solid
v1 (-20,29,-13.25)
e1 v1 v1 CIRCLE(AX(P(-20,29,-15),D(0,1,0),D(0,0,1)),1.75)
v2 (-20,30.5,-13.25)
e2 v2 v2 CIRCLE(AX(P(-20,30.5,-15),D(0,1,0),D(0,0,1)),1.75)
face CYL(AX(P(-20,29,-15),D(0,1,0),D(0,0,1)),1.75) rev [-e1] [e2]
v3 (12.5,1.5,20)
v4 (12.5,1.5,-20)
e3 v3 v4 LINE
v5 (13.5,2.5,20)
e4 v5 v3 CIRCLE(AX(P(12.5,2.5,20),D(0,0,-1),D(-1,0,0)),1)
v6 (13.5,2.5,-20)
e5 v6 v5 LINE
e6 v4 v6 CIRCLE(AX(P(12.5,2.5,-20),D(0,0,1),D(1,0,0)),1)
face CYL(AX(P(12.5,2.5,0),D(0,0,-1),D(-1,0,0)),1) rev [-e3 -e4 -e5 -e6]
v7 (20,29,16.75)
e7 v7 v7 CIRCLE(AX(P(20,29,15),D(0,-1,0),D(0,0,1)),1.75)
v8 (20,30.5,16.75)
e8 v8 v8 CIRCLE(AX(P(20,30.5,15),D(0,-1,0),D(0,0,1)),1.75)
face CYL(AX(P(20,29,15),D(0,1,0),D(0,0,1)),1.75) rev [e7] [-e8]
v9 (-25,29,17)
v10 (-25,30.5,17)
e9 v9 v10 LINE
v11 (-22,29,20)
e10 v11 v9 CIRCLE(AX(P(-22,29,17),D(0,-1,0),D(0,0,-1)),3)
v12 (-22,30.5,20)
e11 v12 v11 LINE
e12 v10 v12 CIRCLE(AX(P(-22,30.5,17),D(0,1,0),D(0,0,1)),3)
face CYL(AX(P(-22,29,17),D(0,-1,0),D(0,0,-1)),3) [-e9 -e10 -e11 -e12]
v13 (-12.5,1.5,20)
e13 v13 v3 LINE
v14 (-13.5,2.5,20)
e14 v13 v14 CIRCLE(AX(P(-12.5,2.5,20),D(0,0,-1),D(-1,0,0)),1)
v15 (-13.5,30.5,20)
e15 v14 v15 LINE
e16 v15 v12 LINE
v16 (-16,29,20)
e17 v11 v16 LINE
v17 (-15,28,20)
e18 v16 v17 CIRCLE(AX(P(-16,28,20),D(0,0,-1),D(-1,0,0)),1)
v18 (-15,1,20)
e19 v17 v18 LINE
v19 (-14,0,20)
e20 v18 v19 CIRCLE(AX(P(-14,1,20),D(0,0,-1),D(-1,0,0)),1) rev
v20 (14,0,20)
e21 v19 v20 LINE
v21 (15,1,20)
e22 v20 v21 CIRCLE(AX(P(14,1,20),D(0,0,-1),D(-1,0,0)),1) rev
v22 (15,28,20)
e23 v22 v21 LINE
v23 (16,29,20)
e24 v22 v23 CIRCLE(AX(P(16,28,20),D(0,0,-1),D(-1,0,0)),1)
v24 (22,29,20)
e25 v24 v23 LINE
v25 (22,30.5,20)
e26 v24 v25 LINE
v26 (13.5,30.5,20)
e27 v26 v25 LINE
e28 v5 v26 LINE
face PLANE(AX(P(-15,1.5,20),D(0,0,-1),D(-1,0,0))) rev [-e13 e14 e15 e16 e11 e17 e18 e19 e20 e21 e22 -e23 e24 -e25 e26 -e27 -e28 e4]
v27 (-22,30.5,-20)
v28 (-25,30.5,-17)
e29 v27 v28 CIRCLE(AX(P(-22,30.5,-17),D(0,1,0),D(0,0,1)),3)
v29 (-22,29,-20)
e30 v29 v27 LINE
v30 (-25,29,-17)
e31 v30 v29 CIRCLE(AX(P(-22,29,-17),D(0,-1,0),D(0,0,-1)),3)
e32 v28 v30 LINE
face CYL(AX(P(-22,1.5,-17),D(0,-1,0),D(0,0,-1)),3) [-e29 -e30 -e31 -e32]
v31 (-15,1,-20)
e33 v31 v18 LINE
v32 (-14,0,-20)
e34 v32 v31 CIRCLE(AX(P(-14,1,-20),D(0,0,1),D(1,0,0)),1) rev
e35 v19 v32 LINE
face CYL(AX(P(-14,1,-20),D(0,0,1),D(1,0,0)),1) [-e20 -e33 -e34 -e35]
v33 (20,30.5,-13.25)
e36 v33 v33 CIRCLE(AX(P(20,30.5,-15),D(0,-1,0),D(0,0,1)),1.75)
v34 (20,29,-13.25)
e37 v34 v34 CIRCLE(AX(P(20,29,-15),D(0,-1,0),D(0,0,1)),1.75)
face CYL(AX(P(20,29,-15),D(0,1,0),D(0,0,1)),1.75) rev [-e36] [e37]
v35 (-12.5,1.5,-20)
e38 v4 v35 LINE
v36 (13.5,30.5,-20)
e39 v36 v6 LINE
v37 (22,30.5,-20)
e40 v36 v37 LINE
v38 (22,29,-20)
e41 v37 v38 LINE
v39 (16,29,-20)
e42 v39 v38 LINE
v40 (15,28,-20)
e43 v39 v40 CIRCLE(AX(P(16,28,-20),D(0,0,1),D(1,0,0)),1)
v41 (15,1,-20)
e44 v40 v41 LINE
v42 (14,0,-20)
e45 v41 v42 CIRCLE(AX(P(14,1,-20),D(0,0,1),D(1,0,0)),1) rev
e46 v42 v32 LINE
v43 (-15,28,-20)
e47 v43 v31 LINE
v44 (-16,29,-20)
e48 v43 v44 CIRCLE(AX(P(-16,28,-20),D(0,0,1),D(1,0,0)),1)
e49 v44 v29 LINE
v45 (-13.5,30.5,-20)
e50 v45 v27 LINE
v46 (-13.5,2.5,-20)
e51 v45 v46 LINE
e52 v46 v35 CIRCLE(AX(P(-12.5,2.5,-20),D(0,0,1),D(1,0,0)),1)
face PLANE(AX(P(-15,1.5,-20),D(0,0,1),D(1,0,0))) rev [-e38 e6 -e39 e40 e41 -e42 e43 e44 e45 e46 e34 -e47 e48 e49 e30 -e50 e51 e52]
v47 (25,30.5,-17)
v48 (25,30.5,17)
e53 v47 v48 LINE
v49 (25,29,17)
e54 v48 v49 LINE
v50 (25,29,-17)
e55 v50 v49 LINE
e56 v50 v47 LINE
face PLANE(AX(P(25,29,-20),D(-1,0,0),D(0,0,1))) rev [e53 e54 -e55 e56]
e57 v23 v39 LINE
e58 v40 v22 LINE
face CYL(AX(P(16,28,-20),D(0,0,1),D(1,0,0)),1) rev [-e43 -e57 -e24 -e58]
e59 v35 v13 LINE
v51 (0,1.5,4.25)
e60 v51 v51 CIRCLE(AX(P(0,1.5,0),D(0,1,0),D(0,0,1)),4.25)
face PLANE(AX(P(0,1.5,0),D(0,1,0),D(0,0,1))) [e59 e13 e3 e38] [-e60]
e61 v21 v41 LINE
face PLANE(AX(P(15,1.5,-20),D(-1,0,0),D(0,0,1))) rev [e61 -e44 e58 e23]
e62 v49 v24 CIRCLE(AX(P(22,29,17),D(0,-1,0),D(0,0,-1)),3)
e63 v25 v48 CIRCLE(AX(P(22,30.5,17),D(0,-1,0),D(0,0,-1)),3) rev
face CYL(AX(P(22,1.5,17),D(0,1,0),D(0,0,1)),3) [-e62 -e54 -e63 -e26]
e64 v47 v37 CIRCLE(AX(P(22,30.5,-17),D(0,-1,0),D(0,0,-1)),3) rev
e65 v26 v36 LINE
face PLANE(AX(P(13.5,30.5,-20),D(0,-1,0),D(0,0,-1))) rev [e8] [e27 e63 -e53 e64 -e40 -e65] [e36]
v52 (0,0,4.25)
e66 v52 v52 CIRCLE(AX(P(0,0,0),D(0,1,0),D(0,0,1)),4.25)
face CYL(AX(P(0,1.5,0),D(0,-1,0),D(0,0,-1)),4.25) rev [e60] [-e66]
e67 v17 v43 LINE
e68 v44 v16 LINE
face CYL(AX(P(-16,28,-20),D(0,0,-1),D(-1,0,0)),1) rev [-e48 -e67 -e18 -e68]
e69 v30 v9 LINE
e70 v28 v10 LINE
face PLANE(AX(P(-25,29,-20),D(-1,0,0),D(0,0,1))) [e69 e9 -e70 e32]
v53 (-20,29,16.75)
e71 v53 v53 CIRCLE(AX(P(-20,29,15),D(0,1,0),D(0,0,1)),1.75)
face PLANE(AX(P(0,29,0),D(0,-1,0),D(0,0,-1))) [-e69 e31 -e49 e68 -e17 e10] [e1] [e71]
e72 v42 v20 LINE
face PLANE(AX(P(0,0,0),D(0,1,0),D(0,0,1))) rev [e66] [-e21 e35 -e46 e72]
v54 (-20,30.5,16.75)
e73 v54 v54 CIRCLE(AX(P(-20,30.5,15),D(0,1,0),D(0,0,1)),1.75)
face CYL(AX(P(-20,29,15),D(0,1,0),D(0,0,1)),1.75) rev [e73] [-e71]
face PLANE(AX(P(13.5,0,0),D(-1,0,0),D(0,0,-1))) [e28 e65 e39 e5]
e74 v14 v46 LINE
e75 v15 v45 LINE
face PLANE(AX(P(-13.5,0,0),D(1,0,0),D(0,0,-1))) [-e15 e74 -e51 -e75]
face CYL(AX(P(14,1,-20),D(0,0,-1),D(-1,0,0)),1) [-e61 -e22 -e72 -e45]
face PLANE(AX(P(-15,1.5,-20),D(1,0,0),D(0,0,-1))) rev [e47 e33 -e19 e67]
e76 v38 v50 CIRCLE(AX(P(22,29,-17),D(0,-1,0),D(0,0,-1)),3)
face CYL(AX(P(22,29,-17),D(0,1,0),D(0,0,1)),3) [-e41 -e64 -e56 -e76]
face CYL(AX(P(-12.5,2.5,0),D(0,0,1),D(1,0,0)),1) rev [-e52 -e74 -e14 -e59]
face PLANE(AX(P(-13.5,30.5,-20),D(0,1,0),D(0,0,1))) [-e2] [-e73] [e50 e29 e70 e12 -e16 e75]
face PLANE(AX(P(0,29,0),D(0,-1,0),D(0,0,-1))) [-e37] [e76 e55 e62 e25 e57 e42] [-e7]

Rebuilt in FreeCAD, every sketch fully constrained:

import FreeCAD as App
import Part
import Sketcher
Q = App.Units.Quantity


def edges_at(feature, points):
    """Names of the edges that pass closest to the given points."""
    edges = feature.Shape.Edges
    near = lambda p: min(range(len(edges)), key=lambda i: edges[i].distToShape(Part.Vertex(*p))[0])
    return sorted({f"Edge{near(p) + 1}" for p in points})

doc = App.newDocument("Part")
params = doc.addObject("Spreadsheet::Sheet", "Params")
for row, (alias, value) in enumerate([
    ("sketch1_diameter", "8.5 mm"),
    ("sketch1_width", "30 mm"),
    ("sketch1_height", "40 mm"),
    ("pad1_length", "1.5 mm"),
    ("sketch2_height", "40 mm"),
    ("sketch2_width", "30.5 mm"),
    ("pad2_length", "1.5 mm"),
    ("sketch3_diameter", "3.5 mm"),
    ("sketch3_height", "40 mm"),
    ("sketch3_width", "11.5 mm"),
    ("pad3_length", "1.5 mm"),
    ("fillet_radius", "1 mm"),
    ("fillet2_radius", "3 mm"),
], start=1):
    params.set(f"A{row}", alias)
    params.set(f"B{row}", "=" + value)
    params.setAlias(f"B{row}", alias)

body = doc.addObject("PartDesign::Body", "Body")

# Sketch on XZ plane
sketch1 = doc.addObject("Sketcher::SketchObject", "Sketch")
body.addObject(sketch1)
sketch1.AttachmentSupport = (doc.XZ_Plane, [""])
sketch1.MapMode = "FlatFace"
sketch1.addGeometry(Part.LineSegment(App.Vector(-15, -20, 0), App.Vector(-15, 20, 0)), False)
sketch1.addGeometry(Part.LineSegment(App.Vector(-15, 20, 0), App.Vector(15, 20, 0)), False)
sketch1.addGeometry(Part.LineSegment(App.Vector(15, 20, 0), App.Vector(15, -20, 0)), False)
sketch1.addGeometry(Part.LineSegment(App.Vector(15, -20, 0), App.Vector(-15, -20, 0)), False)
sketch1.addGeometry(Part.Circle(App.Vector(0, 0, 0), App.Vector(0, 0, 1), 4.2), False)
sketch1.addConstraint(Sketcher.Constraint("Coincident", 0, 2, 1, 1))
sketch1.addConstraint(Sketcher.Constraint("Coincident", 1, 2, 2, 1))
sketch1.addConstraint(Sketcher.Constraint("Coincident", 2, 2, 3, 1))
sketch1.addConstraint(Sketcher.Constraint("Coincident", 3, 2, 0, 1))
sketch1.addConstraint(Sketcher.Constraint("Vertical", 0))
sketch1.addConstraint(Sketcher.Constraint("Horizontal", 1))
sketch1.addConstraint(Sketcher.Constraint("Vertical", 2))
sketch1.addConstraint(Sketcher.Constraint("Horizontal", 3))
sketch1.addConstraint(Sketcher.Constraint("Coincident", 4, 3, -1, 1))
sketch1.addConstraint(Sketcher.Constraint("Symmetric", 0, 2, 2, 2, -1, 1))
sketch1.addConstraint(Sketcher.Constraint("Diameter", 4, Q("8.5 mm")))
sketch1.addConstraint(Sketcher.Constraint("DistanceX", 1, 1, 1, 2, Q("30 mm")))
sketch1.addConstraint(Sketcher.Constraint("DistanceY", 0, 1, 0, 2, Q("40 mm")))
sketch1.setExpression("Constraints[10]", "Params.sketch1_diameter")
sketch1.setExpression("Constraints[11]", "Params.sketch1_width")
sketch1.setExpression("Constraints[12]", "Params.sketch1_height")
pad1 = doc.addObject("PartDesign::Pad", "Pad")
body.addObject(pad1)
pad1.Profile = sketch1
pad1.setExpression("Length", "Params.pad1_length")
pad1.Reversed = True

# Sketch on YZ plane
sketch2 = doc.addObject("Sketcher::SketchObject", "Sketch001")
body.addObject(sketch2)
sketch2.AttachmentSupport = (doc.YZ_Plane, [""])
sketch2.MapMode = "FlatFace"
sketch2.AttachmentOffset = App.Placement(App.Vector(0, 0, -15), App.Rotation())
sketch2.addGeometry(Part.LineSegment(App.Vector(30, -20, 0), App.Vector(0, -20, 0)), False)
sketch2.addGeometry(Part.LineSegment(App.Vector(0, -20, 0), App.Vector(0, 20, 0)), False)
sketch2.addGeometry(Part.LineSegment(App.Vector(0, 20, 0), App.Vector(30, 20, 0)), False)
sketch2.addGeometry(Part.LineSegment(App.Vector(30, 20, 0), App.Vector(30, -20, 0)), False)
sketch2.addConstraint(Sketcher.Constraint("Coincident", 0, 2, 1, 1))
sketch2.addConstraint(Sketcher.Constraint("Coincident", 1, 2, 2, 1))
sketch2.addConstraint(Sketcher.Constraint("Coincident", 2, 2, 3, 1))
sketch2.addConstraint(Sketcher.Constraint("Coincident", 3, 2, 0, 1))
sketch2.addConstraint(Sketcher.Constraint("Horizontal", 0))
sketch2.addConstraint(Sketcher.Constraint("Vertical", 1))
sketch2.addConstraint(Sketcher.Constraint("Horizontal", 2))
sketch2.addConstraint(Sketcher.Constraint("Vertical", 3))
sketch2.addConstraint(Sketcher.Constraint("Symmetric", 0, 2, 1, 2, -1, 1))
sketch2.addConstraint(Sketcher.Constraint("DistanceY", 1, 1, 1, 2, Q("40 mm")))
sketch2.addConstraint(Sketcher.Constraint("DistanceX", 0, 2, 0, 1, Q("30.5 mm")))
sketch2.setExpression("Constraints[9]", "Params.sketch2_height")
sketch2.setExpression("Constraints[10]", "Params.sketch2_width")
pad2 = doc.addObject("PartDesign::Pad", "Pad001")
body.addObject(pad2)
pad2.Profile = sketch2
pad2.setExpression("Length", "Params.pad2_length")

# Sketch on XZ plane
sketch3 = doc.addObject("Sketcher::SketchObject", "Sketch002")
body.addObject(sketch3)
sketch3.AttachmentSupport = (doc.XZ_Plane, [""])
sketch3.MapMode = "FlatFace"
sketch3.AttachmentOffset = App.Placement(App.Vector(0, 0, -30.5), App.Rotation())
sketch3.addGeometry(Part.LineSegment(App.Vector(-25, -20, 0), App.Vector(-25, 20, 0)), False)
sketch3.addGeometry(Part.LineSegment(App.Vector(-25, 20, 0), App.Vector(-13.5, 20, 0)), False)
sketch3.addGeometry(Part.LineSegment(App.Vector(-13.5, 20, 0), App.Vector(-13.5, -20, 0)), False)
sketch3.addGeometry(Part.LineSegment(App.Vector(-13.5, -20, 0), App.Vector(-25, -20, 0)), False)
sketch3.addGeometry(Part.Circle(App.Vector(-20, 15, 0), App.Vector(0, 0, 1), 1.8), False)
sketch3.addGeometry(Part.Circle(App.Vector(-20, -15, 0), App.Vector(0, 0, 1), 1.8), False)
sketch3.addConstraint(Sketcher.Constraint("Coincident", 0, 2, 1, 1))
sketch3.addConstraint(Sketcher.Constraint("Coincident", 1, 2, 2, 1))
sketch3.addConstraint(Sketcher.Constraint("Coincident", 2, 2, 3, 1))
sketch3.addConstraint(Sketcher.Constraint("Coincident", 3, 2, 0, 1))
sketch3.addConstraint(Sketcher.Constraint("Vertical", 0))
sketch3.addConstraint(Sketcher.Constraint("Horizontal", 1))
sketch3.addConstraint(Sketcher.Constraint("Vertical", 2))
sketch3.addConstraint(Sketcher.Constraint("Horizontal", 3))
sketch3.addConstraint(Sketcher.Constraint("Equal", 4, 5))
sketch3.addConstraint(Sketcher.Constraint("Symmetric", 4, 3, 5, 3, -1))
sketch3.addConstraint(Sketcher.Constraint("Diameter", 4, Q("3.5 mm")))
sketch3.addConstraint(Sketcher.Constraint("DistanceY", 0, 1, 0, 2, Q("40 mm")))
sketch3.addConstraint(Sketcher.Constraint("DistanceX", 1, 1, 1, 2, Q("11.5 mm")))
sketch3.addConstraint(Sketcher.Constraint("DistanceX", 4, 3, -1, 1, Q("20 mm")))
sketch3.addConstraint(Sketcher.Constraint("DistanceY", -1, 1, 4, 3, Q("15 mm")))
sketch3.addConstraint(Sketcher.Constraint("DistanceX", 0, 2, -1, 1, Q("25 mm")))
sketch3.addConstraint(Sketcher.Constraint("DistanceY", -1, 1, 0, 2, Q("20 mm")))
sketch3.setExpression("Constraints[10]", "Params.sketch3_diameter")
sketch3.setExpression("Constraints[11]", "Params.sketch3_height")
sketch3.setExpression("Constraints[12]", "Params.sketch3_width")
pad3 = doc.addObject("PartDesign::Pad", "Pad002")
body.addObject(pad3)
pad3.Profile = sketch3
pad3.setExpression("Length", "Params.pad3_length")
doc.recompute()

mirrored = doc.addObject("PartDesign::Mirrored", "Mirrored")
body.addObject(mirrored)
mirrored.Originals = [pad2, pad3]
mirrored.MirrorPlane = (doc.YZ_Plane, [""])
body.Tip = mirrored
doc.recompute()

fillet = doc.addObject("PartDesign::Fillet", "Fillet")
body.addObject(fillet)
fillet.Base = (mirrored, edges_at(mirrored, [
    (-13.5, 1.5, 0),
    (-15, 29, 0),
    (15, 0, 0),
    (-15, 0, 0),
    (13.5, 1.5, 0),
    (15, 29, 0),
]))
fillet.setExpression("Radius", "Params.fillet_radius")
doc.recompute()

fillet2 = doc.addObject("PartDesign::Fillet", "Fillet001")
body.addObject(fillet2)
fillet2.Base = (fillet, edges_at(fillet, [
    (-25, 29.75, -20),
    (-25, 29.75, 20),
    (25, 29.75, 20),
    (25, 29.75, -20),
]))
fillet2.setExpression("Radius", "Params.fillet2_radius")

doc.recompute()
